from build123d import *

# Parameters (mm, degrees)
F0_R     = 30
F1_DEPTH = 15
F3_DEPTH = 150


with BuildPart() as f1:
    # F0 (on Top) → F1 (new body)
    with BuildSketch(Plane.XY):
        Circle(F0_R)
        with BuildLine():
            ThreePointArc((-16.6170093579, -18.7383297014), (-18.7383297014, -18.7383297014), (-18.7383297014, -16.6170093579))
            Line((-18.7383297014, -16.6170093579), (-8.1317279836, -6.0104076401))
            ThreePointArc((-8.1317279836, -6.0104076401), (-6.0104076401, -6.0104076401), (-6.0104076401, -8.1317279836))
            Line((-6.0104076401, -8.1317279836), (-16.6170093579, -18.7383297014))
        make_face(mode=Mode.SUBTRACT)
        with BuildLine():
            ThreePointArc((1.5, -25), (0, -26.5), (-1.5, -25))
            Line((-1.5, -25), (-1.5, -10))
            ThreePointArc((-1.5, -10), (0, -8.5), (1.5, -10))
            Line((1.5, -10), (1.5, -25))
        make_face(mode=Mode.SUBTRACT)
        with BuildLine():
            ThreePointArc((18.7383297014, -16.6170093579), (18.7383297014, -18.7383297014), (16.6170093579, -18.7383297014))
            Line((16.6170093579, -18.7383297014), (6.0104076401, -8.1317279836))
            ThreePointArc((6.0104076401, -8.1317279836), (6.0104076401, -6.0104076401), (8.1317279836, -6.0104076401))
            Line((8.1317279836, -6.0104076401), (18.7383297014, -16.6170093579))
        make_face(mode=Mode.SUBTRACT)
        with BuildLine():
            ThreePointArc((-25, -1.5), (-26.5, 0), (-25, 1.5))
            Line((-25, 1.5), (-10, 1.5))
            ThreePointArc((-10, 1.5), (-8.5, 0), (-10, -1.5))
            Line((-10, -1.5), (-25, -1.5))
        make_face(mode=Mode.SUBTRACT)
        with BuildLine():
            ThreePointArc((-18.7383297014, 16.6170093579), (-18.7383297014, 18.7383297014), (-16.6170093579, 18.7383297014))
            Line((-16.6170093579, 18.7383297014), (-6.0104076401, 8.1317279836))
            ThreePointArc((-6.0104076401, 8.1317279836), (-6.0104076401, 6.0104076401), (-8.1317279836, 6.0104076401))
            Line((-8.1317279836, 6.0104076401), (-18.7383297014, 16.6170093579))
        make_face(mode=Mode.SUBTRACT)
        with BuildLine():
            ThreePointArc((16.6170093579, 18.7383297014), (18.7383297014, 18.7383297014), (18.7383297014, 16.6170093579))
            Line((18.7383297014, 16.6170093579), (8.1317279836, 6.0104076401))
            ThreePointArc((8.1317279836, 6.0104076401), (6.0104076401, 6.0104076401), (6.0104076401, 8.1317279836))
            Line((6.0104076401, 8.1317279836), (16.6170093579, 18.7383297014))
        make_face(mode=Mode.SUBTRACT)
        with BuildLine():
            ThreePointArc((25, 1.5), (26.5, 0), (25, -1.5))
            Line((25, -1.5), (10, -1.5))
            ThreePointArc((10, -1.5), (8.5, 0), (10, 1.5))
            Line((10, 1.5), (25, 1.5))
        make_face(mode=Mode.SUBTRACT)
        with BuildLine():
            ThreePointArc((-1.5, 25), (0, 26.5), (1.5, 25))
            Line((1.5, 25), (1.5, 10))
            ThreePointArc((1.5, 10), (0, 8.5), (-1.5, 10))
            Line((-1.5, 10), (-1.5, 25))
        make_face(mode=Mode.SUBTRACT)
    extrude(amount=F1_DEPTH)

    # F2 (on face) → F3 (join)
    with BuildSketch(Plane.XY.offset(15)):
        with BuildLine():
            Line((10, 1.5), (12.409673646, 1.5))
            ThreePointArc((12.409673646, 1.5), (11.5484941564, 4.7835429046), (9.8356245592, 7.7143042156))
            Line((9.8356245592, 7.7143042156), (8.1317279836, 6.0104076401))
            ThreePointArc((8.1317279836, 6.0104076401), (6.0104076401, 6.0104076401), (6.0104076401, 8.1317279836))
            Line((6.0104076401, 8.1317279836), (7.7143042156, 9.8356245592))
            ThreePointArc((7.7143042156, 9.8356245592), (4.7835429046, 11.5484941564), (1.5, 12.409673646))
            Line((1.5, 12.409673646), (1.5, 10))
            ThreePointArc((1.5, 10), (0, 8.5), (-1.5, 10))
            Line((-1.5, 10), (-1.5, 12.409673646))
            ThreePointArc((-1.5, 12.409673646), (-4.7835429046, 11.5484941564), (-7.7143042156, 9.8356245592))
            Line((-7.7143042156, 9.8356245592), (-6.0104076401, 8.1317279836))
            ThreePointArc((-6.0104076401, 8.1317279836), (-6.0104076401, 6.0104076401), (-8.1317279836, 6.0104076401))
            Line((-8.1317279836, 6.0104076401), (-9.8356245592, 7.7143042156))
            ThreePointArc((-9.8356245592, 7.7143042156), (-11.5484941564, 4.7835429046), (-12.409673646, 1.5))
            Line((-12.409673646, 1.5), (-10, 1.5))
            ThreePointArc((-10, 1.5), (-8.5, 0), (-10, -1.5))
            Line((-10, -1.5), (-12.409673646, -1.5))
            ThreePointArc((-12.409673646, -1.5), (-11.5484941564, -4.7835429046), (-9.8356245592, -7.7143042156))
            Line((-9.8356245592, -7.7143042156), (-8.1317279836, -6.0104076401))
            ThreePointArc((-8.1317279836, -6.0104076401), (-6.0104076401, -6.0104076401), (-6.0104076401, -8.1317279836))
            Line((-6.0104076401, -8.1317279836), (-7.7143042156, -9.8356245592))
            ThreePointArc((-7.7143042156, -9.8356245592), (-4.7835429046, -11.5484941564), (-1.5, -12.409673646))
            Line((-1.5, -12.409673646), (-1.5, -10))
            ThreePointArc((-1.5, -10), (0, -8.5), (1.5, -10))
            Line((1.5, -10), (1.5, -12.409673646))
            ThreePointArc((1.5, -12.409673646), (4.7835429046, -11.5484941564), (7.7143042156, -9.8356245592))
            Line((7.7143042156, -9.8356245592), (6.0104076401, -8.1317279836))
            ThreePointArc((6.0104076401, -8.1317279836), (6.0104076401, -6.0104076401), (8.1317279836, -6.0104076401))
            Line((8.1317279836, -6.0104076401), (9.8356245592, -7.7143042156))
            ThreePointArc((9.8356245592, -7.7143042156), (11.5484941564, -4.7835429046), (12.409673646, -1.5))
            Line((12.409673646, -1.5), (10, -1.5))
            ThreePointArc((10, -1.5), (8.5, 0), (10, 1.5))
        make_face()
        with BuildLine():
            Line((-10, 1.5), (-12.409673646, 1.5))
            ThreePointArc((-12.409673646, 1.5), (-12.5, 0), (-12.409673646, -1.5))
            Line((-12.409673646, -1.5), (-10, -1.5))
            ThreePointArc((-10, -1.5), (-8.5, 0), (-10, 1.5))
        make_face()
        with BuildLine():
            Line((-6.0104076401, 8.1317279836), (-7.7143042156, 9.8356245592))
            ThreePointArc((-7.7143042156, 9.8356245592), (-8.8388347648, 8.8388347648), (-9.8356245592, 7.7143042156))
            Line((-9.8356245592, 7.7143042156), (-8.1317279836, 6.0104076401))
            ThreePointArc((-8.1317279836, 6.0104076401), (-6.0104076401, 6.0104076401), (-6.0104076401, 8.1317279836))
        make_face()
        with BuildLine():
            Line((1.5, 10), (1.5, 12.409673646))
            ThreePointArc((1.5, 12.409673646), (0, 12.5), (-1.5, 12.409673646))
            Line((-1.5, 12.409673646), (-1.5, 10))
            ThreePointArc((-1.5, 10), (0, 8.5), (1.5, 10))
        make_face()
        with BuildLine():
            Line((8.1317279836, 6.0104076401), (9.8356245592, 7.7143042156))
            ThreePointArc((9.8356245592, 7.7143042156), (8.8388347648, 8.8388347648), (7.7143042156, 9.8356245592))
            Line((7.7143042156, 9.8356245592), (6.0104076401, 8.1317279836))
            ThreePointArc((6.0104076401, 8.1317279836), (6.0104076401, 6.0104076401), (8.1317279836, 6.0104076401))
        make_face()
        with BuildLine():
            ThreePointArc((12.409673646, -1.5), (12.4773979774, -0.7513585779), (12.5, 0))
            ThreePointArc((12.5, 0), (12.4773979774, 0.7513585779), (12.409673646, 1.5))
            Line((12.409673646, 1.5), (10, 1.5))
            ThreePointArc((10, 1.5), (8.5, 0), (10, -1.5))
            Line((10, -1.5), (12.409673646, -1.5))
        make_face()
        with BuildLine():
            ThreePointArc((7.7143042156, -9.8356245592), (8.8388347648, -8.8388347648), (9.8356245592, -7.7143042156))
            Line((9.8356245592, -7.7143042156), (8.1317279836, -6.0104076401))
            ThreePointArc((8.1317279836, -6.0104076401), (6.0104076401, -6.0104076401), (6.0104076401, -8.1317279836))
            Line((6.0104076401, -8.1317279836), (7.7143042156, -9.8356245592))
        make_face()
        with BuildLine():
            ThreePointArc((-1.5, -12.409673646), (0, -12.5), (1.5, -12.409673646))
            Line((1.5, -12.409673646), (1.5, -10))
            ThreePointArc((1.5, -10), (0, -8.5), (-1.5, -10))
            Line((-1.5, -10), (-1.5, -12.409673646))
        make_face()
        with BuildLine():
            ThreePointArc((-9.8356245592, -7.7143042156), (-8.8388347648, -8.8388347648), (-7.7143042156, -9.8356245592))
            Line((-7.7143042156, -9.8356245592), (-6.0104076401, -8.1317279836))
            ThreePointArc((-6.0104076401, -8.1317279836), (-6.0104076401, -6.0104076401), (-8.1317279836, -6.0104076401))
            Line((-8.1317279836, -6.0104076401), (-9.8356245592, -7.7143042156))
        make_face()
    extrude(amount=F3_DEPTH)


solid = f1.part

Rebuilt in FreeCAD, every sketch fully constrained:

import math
import FreeCAD as App
import Part
import Sketcher

V = App.Vector

doc = App.newDocument("Part")
body = doc.addObject("PartDesign::Body", "Body")

sketch1 = body.newObject("Sketcher::SketchObject", "Sketch")
sketch1.AttachmentSupport = (doc.getObject("XY_Plane"), [""])
sketch1.MapMode = "FlatFace"
sketch1.addGeometry([
    Part.Circle(V(0, 0, 0), V(0, 0, 1), 30),
    Part.LineSegment(V(-6, -8.1, 0), V(-16.6, -18.7, 0)),
    Part.ArcOfCircle(Part.Circle(V(-17.7, -17.7, 0), V(0, 0, 1), 1.5), math.radians(135), math.radians(315)),
    Part.LineSegment(V(-18.7, -16.6, 0), V(-8.1, -6, 0)),
    Part.ArcOfCircle(Part.Circle(V(-7.1, -7.1, 0), V(0, 0, 1), 1.5), math.radians(-45), math.radians(135)),
    Part.LineSegment(V(1.5, -10, 0), V(1.5, -25, 0)),
    Part.ArcOfCircle(Part.Circle(V(0, -25, 0), V(0, 0, 1), 1.5), math.radians(180), math.radians(360)),
    Part.LineSegment(V(-1.5, -25, 0), V(-1.5, -10, 0)),
    Part.ArcOfCircle(Part.Circle(V(0, -10, 0), V(0, 0, 1), 1.5), math.radians(0), math.radians(180)),
    Part.LineSegment(V(8.1, -6, 0), V(18.7, -16.6, 0)),
    Part.ArcOfCircle(Part.Circle(V(17.7, -17.7, 0), V(0, 0, 1), 1.5), math.radians(-135), math.radians(45)),
    Part.LineSegment(V(16.6, -18.7, 0), V(6, -8.1, 0)),
    Part.ArcOfCircle(Part.Circle(V(7.1, -7.1, 0), V(0, 0, 1), 1.5), math.radians(45), math.radians(225)),
    Part.LineSegment(V(-10, -1.5, 0), V(-25, -1.5, 0)),
    Part.ArcOfCircle(Part.Circle(V(-25, 0, 0), V(0, 0, 1), 1.5), math.radians(90), math.radians(270)),
    Part.LineSegment(V(-25, 1.5, 0), V(-10, 1.5, 0)),
    Part.ArcOfCircle(Part.Circle(V(-10, 0, 0), V(0, 0, 1), 1.5), math.radians(-90), math.radians(90)),
    Part.LineSegment(V(-8.1, 6, 0), V(-18.7, 16.6, 0)),
    Part.ArcOfCircle(Part.Circle(V(-17.7, 17.7, 0), V(0, 0, 1), 1.5), math.radians(45), math.radians(225)),
    Part.LineSegment(V(-16.6, 18.7, 0), V(-6, 8.1, 0)),
    Part.ArcOfCircle(Part.Circle(V(-7.1, 7.1, 0), V(0, 0, 1), 1.5), math.radians(-135), math.radians(45)),
    Part.LineSegment(V(6, 8.1, 0), V(16.6, 18.7, 0)),
    Part.ArcOfCircle(Part.Circle(V(17.7, 17.7, 0), V(0, 0, 1), 1.5), math.radians(-45), math.radians(135)),
    Part.LineSegment(V(18.7, 16.6, 0), V(8.1, 6, 0)),
    Part.ArcOfCircle(Part.Circle(V(7.1, 7.1, 0), V(0, 0, 1), 1.5), math.radians(135), math.radians(315)),
    Part.LineSegment(V(10, 1.5, 0), V(25, 1.5, 0)),
    Part.ArcOfCircle(Part.Circle(V(25, 0, 0), V(0, 0, 1), 1.5), math.radians(-90), math.radians(90)),
    Part.LineSegment(V(25, -1.5, 0), V(10, -1.5, 0)),
    Part.ArcOfCircle(Part.Circle(V(10, 0, 0), V(0, 0, 1), 1.5), math.radians(90), math.radians(270)),
    Part.LineSegment(V(-1.5, 10, 0), V(-1.5, 25, 0)),
    Part.ArcOfCircle(Part.Circle(V(0, 25, 0), V(0, 0, 1), 1.5), math.radians(0), math.radians(180)),
    Part.LineSegment(V(1.5, 25, 0), V(1.5, 10, 0)),
    Part.ArcOfCircle(Part.Circle(V(0, 10, 0), V(0, 0, 1), 1.5), math.radians(180), math.radians(360)),
], False)
sketch1.addConstraint([
    Sketcher.Constraint("Tangent", 1, 2, 2, 2),
    Sketcher.Constraint("Tangent", 2, 1, 3, 1),
    Sketcher.Constraint("Tangent", 3, 2, 4, 2),
    Sketcher.Constraint("Tangent", 4, 1, 1, 1),
    Sketcher.Constraint("Tangent", 5, 2, 6, 2),
    Sketcher.Constraint("Tangent", 6, 1, 7, 1),
    Sketcher.Constraint("Tangent", 7, 2, 8, 2),
    Sketcher.Constraint("Tangent", 8, 1, 5, 1),
    Sketcher.Constraint("Tangent", 9, 2, 10, 2),
    Sketcher.Constraint("Tangent", 10, 1, 11, 1),
    Sketcher.Constraint("Tangent", 11, 2, 12, 2),
    Sketcher.Constraint("Tangent", 12, 1, 9, 1),
    Sketcher.Constraint("Tangent", 13, 2, 14, 2),
    Sketcher.Constraint("Tangent", 14, 1, 15, 1),
    Sketcher.Constraint("Tangent", 15, 2, 16, 2),
    Sketcher.Constraint("Tangent", 16, 1, 13, 1),
    Sketcher.Constraint("Tangent", 17, 2, 18, 2),
    Sketcher.Constraint("Tangent", 18, 1, 19, 1),
    Sketcher.Constraint("Tangent", 19, 2, 20, 2),
    Sketcher.Constraint("Tangent", 20, 1, 17, 1),
    Sketcher.Constraint("Tangent", 21, 2, 22, 2),
    Sketcher.Constraint("Tangent", 22, 1, 23, 1),
    Sketcher.Constraint("Tangent", 23, 2, 24, 2),
    Sketcher.Constraint("Tangent", 24, 1, 21, 1),
    Sketcher.Constraint("Tangent", 25, 2, 26, 2),
    Sketcher.Constraint("Tangent", 26, 1, 27, 1),
    Sketcher.Constraint("Tangent", 27, 2, 28, 2),
    Sketcher.Constraint("Tangent", 28, 1, 25, 1),
    Sketcher.Constraint("Tangent", 29, 2, 30, 2),
    Sketcher.Constraint("Tangent", 30, 1, 31, 1),
    Sketcher.Constraint("Tangent", 31, 2, 32, 2),
    Sketcher.Constraint("Tangent", 32, 1, 29, 1),
    Sketcher.Constraint("Vertical", 5),
    Sketcher.Constraint("Vertical", 7),
    Sketcher.Constraint("Horizontal", 13),
    Sketcher.Constraint("Horizontal", 15),
    Sketcher.Constraint("Horizontal", 25),
    Sketcher.Constraint("Horizontal", 27),
    Sketcher.Constraint("Vertical", 29),
    Sketcher.Constraint("Vertical", 31),
    Sketcher.Constraint("Coincident", 0, 3, -1, 1),
    Sketcher.Constraint("Equal", 2, 4),
    Sketcher.Constraint("Equal", 4, 6),
    Sketcher.Constraint("Equal", 8, 10),
    Sketcher.Constraint("Equal", 10, 12),
    Sketcher.Constraint("Equal", 12, 14),
    Sketcher.Constraint("Equal", 16, 18),
    Sketcher.Constraint("Equal", 18, 20),
    Sketcher.Constraint("Equal", 20, 22),
    Sketcher.Constraint("Equal", 22, 24),
    Sketcher.Constraint("Equal", 24, 26),
    Sketcher.Constraint("Equal", 28, 30),
    Sketcher.Constraint("Symmetric", 10, 3, 18, 3, -1, 1),
    Sketcher.Constraint("Symmetric", 12, 3, 20, 3, -1, 1),
    Sketcher.Constraint("Symmetric", 2, 3, 22, 3, -1, 1),
    Sketcher.Constraint("Symmetric", 4, 3, 24, 3, -1, 1),
    Sketcher.Constraint("Symmetric", 14, 3, 26, 3, -1, 1),
    Sketcher.Constraint("Symmetric", 6, 3, 30, 3, -1, 1),
    Sketcher.Constraint("Symmetric", 2, 3, 10, 3, -2),
    Sketcher.Constraint("Symmetric", 4, 3, 12, 3, -2),
    Sketcher.Constraint("Symmetric", 16, 3, 28, 3, -2),
    Sketcher.Constraint("Symmetric", 8, 3, 32, 3, -1),
    Sketcher.Constraint("Perpendicular", 3, 9),
    Sketcher.Constraint("Equal", 27, 5),
    Sketcher.Constraint("Diameter", 0, 60.0),
    Sketcher.Constraint("Radius", 2, 1.5),
    Sketcher.Constraint("DistanceX", 13, 2, 13, 1, 15.0),
    Sketcher.Constraint("Distance", 1, 15.0),
    Sketcher.Constraint("DistanceY", 6, 3, -1, 1, 25.0),
    Sketcher.Constraint("DistanceX", 14, 3, -1, 1, 25.0),
    Sketcher.Constraint("DistanceX", 2, 3, -1, 1, 17.67767),
    Sketcher.Constraint("DistanceY", 2, 3, -1, 1, 17.67767),
])
pad1 = body.newObject("PartDesign::Pad", "Pad")
pad1.Profile = sketch1
pad1.Length = 15

sketch2 = body.newObject("Sketcher::SketchObject", "Sketch001")
sketch2.AttachmentSupport = (doc.getObject("XY_Plane"), [""])
sketch2.MapMode = "FlatFace"
sketch2.AttachmentOffset = App.Placement(V(0, 0, 15), App.Rotation())
sketch2.addGeometry([
    Part.ArcOfCircle(Part.Circle(V(0, 0, 0), V(0, 0, 1), 12.5), math.radians(7), math.radians(38)),
    Part.ArcOfCircle(Part.Circle(V(0, 0, 0), V(0, 0, 1), 12.5), math.radians(38.11), math.radians(51.89)),
    Part.ArcOfCircle(Part.Circle(V(0, 0, 0), V(0, 0, 1), 12.5), math.radians(52), math.radians(83)),
    Part.ArcOfCircle(Part.Circle(V(0, 0, 0), V(0, 0, 1), 12.5), math.radians(83.11), math.radians(96.89)),
    Part.ArcOfCircle(Part.Circle(V(0, 0, 0), V(0, 0, 1), 12.5), math.radians(97), math.radians(128)),
    Part.ArcOfCircle(Part.Circle(V(0, 0, 0), V(0, 0, 1), 12.5), math.radians(128.11), math.radians(141.89)),
    Part.ArcOfCircle(Part.Circle(V(0, 0, 0), V(0, 0, 1), 12.5), math.radians(142), math.radians(173)),
    Part.ArcOfCircle(Part.Circle(V(0, 0, 0), V(0, 0, 1), 12.5), math.radians(173.11), math.radians(186.89)),
    Part.ArcOfCircle(Part.Circle(V(0, 0, 0), V(0, 0, 1), 12.5), math.radians(-173), math.radians(-142)),
    Part.ArcOfCircle(Part.Circle(V(0, 0, 0), V(0, 0, 1), 12.5), math.radians(-141.89), math.radians(-128.11)),
    Part.ArcOfCircle(Part.Circle(V(0, 0, 0), V(0, 0, 1), 12.5), math.radians(-128), math.radians(-97)),
    Part.ArcOfCircle(Part.Circle(V(0, 0, 0), V(0, 0, 1), 12.5), math.radians(-96.89), math.radians(-83.11)),
    Part.ArcOfCircle(Part.Circle(V(0, 0, 0), V(0, 0, 1), 12.5), math.radians(-83), math.radians(-52)),
    Part.ArcOfCircle(Part.Circle(V(0, 0, 0), V(0, 0, 1), 12.5), math.radians(-51.89), math.radians(-38.11)),
    Part.ArcOfCircle(Part.Circle(V(0, 0, 0), V(0, 0, 1), 12.5), math.radians(-38), math.radians(-7)),
    Part.ArcOfCircle(Part.Circle(V(0, 0, 0), V(0, 0, 1), 12.5), math.radians(-6.89), math.radians(0)),
    Part.ArcOfCircle(Part.Circle(V(0, 0, 0), V(0, 0, 1), 12.5), math.radians(0), math.radians(6.89)),
], False)
sketch2.addConstraint([
    Sketcher.Constraint("Tangent", 0, 2, 1, 1),
    Sketcher.Constraint("Tangent", 1, 2, 2, 1),
    Sketcher.Constraint("Tangent", 2, 2, 3, 1),
    Sketcher.Constraint("Tangent", 3, 2, 4, 1),
    Sketcher.Constraint("Tangent", 4, 2, 5, 1),
    Sketcher.Constraint("Tangent", 5, 2, 6, 1),
    Sketcher.Constraint("Tangent", 6, 2, 7, 1),
    Sketcher.Constraint("Tangent", 7, 2, 8, 1),
    Sketcher.Constraint("Tangent", 8, 2, 9, 1),
    Sketcher.Constraint("Tangent", 9, 2, 10, 1),
    Sketcher.Constraint("Tangent", 10, 2, 11, 1),
    Sketcher.Constraint("Tangent", 11, 2, 12, 1),
    Sketcher.Constraint("Tangent", 12, 2, 13, 1),
    Sketcher.Constraint("Tangent", 13, 2, 14, 1),
    Sketcher.Constraint("Tangent", 14, 2, 15, 1),
    Sketcher.Constraint("Tangent", 15, 2, 16, 1),
    Sketcher.Constraint("Tangent", 16, 2, 0, 1),
    Sketcher.Constraint("Coincident", 0, 3, -1, 1),
    Sketcher.Constraint("Coincident", 2, 3, -1, 1),
    Sketcher.Constraint("Coincident", 4, 3, -1, 1),
    Sketcher.Constraint("Coincident", 6, 3, -1, 1),
    Sketcher.Constraint("Coincident", 8, 3, -1, 1),
    Sketcher.Constraint("Coincident", 10, 3, -1, 1),
    Sketcher.Constraint("Coincident", 12, 3, -1, 1),
    Sketcher.Constraint("Coincident", 14, 3, -1, 1),
    Sketcher.Constraint("PointOnObject", 15, 2, -1),
    Sketcher.Constraint("Horizontal", 2, 2, 3, 2),
    Sketcher.Constraint("Horizontal", 1, 2, 4, 2),
    Sketcher.Constraint("Horizontal", 0, 2, 5, 2),
    Sketcher.Constraint("Horizontal", 10, 2, 11, 2),
    Sketcher.Constraint("Horizontal", 9, 2, 12, 2),
    Sketcher.Constraint("Horizontal", 8, 2, 13, 2),
    Sketcher.Constraint("Horizontal", 7, 2, 14, 2),
    Sketcher.Constraint("Horizontal", 6, 2, 16, 2),
    Sketcher.Constraint("Vertical", 6, 2, 7, 2),
    Sketcher.Constraint("Vertical", 5, 2, 8, 2),
    Sketcher.Constraint("Vertical", 4, 2, 9, 2),
    Sketcher.Constraint("Vertical", 3, 2, 10, 2),
    Sketcher.Constraint("Radius", 0, 12.5),
    Sketcher.Constraint("DistanceX", 3, 2, 2, 2, 3.0),
    Sketcher.Constraint("DistanceY", 7, 2, 6, 2, 3.0),
    Sketcher.Constraint("DistanceX", 1, 2, 0, 2, 2.12132),
    Sketcher.Constraint("DistanceY", 0, 2, 1, 2, 2.12132),
])
pad2 = body.newObject("PartDesign::Pad", "Pad001")
pad2.Profile = sketch2
pad2.Length = 150

doc.recompute()
